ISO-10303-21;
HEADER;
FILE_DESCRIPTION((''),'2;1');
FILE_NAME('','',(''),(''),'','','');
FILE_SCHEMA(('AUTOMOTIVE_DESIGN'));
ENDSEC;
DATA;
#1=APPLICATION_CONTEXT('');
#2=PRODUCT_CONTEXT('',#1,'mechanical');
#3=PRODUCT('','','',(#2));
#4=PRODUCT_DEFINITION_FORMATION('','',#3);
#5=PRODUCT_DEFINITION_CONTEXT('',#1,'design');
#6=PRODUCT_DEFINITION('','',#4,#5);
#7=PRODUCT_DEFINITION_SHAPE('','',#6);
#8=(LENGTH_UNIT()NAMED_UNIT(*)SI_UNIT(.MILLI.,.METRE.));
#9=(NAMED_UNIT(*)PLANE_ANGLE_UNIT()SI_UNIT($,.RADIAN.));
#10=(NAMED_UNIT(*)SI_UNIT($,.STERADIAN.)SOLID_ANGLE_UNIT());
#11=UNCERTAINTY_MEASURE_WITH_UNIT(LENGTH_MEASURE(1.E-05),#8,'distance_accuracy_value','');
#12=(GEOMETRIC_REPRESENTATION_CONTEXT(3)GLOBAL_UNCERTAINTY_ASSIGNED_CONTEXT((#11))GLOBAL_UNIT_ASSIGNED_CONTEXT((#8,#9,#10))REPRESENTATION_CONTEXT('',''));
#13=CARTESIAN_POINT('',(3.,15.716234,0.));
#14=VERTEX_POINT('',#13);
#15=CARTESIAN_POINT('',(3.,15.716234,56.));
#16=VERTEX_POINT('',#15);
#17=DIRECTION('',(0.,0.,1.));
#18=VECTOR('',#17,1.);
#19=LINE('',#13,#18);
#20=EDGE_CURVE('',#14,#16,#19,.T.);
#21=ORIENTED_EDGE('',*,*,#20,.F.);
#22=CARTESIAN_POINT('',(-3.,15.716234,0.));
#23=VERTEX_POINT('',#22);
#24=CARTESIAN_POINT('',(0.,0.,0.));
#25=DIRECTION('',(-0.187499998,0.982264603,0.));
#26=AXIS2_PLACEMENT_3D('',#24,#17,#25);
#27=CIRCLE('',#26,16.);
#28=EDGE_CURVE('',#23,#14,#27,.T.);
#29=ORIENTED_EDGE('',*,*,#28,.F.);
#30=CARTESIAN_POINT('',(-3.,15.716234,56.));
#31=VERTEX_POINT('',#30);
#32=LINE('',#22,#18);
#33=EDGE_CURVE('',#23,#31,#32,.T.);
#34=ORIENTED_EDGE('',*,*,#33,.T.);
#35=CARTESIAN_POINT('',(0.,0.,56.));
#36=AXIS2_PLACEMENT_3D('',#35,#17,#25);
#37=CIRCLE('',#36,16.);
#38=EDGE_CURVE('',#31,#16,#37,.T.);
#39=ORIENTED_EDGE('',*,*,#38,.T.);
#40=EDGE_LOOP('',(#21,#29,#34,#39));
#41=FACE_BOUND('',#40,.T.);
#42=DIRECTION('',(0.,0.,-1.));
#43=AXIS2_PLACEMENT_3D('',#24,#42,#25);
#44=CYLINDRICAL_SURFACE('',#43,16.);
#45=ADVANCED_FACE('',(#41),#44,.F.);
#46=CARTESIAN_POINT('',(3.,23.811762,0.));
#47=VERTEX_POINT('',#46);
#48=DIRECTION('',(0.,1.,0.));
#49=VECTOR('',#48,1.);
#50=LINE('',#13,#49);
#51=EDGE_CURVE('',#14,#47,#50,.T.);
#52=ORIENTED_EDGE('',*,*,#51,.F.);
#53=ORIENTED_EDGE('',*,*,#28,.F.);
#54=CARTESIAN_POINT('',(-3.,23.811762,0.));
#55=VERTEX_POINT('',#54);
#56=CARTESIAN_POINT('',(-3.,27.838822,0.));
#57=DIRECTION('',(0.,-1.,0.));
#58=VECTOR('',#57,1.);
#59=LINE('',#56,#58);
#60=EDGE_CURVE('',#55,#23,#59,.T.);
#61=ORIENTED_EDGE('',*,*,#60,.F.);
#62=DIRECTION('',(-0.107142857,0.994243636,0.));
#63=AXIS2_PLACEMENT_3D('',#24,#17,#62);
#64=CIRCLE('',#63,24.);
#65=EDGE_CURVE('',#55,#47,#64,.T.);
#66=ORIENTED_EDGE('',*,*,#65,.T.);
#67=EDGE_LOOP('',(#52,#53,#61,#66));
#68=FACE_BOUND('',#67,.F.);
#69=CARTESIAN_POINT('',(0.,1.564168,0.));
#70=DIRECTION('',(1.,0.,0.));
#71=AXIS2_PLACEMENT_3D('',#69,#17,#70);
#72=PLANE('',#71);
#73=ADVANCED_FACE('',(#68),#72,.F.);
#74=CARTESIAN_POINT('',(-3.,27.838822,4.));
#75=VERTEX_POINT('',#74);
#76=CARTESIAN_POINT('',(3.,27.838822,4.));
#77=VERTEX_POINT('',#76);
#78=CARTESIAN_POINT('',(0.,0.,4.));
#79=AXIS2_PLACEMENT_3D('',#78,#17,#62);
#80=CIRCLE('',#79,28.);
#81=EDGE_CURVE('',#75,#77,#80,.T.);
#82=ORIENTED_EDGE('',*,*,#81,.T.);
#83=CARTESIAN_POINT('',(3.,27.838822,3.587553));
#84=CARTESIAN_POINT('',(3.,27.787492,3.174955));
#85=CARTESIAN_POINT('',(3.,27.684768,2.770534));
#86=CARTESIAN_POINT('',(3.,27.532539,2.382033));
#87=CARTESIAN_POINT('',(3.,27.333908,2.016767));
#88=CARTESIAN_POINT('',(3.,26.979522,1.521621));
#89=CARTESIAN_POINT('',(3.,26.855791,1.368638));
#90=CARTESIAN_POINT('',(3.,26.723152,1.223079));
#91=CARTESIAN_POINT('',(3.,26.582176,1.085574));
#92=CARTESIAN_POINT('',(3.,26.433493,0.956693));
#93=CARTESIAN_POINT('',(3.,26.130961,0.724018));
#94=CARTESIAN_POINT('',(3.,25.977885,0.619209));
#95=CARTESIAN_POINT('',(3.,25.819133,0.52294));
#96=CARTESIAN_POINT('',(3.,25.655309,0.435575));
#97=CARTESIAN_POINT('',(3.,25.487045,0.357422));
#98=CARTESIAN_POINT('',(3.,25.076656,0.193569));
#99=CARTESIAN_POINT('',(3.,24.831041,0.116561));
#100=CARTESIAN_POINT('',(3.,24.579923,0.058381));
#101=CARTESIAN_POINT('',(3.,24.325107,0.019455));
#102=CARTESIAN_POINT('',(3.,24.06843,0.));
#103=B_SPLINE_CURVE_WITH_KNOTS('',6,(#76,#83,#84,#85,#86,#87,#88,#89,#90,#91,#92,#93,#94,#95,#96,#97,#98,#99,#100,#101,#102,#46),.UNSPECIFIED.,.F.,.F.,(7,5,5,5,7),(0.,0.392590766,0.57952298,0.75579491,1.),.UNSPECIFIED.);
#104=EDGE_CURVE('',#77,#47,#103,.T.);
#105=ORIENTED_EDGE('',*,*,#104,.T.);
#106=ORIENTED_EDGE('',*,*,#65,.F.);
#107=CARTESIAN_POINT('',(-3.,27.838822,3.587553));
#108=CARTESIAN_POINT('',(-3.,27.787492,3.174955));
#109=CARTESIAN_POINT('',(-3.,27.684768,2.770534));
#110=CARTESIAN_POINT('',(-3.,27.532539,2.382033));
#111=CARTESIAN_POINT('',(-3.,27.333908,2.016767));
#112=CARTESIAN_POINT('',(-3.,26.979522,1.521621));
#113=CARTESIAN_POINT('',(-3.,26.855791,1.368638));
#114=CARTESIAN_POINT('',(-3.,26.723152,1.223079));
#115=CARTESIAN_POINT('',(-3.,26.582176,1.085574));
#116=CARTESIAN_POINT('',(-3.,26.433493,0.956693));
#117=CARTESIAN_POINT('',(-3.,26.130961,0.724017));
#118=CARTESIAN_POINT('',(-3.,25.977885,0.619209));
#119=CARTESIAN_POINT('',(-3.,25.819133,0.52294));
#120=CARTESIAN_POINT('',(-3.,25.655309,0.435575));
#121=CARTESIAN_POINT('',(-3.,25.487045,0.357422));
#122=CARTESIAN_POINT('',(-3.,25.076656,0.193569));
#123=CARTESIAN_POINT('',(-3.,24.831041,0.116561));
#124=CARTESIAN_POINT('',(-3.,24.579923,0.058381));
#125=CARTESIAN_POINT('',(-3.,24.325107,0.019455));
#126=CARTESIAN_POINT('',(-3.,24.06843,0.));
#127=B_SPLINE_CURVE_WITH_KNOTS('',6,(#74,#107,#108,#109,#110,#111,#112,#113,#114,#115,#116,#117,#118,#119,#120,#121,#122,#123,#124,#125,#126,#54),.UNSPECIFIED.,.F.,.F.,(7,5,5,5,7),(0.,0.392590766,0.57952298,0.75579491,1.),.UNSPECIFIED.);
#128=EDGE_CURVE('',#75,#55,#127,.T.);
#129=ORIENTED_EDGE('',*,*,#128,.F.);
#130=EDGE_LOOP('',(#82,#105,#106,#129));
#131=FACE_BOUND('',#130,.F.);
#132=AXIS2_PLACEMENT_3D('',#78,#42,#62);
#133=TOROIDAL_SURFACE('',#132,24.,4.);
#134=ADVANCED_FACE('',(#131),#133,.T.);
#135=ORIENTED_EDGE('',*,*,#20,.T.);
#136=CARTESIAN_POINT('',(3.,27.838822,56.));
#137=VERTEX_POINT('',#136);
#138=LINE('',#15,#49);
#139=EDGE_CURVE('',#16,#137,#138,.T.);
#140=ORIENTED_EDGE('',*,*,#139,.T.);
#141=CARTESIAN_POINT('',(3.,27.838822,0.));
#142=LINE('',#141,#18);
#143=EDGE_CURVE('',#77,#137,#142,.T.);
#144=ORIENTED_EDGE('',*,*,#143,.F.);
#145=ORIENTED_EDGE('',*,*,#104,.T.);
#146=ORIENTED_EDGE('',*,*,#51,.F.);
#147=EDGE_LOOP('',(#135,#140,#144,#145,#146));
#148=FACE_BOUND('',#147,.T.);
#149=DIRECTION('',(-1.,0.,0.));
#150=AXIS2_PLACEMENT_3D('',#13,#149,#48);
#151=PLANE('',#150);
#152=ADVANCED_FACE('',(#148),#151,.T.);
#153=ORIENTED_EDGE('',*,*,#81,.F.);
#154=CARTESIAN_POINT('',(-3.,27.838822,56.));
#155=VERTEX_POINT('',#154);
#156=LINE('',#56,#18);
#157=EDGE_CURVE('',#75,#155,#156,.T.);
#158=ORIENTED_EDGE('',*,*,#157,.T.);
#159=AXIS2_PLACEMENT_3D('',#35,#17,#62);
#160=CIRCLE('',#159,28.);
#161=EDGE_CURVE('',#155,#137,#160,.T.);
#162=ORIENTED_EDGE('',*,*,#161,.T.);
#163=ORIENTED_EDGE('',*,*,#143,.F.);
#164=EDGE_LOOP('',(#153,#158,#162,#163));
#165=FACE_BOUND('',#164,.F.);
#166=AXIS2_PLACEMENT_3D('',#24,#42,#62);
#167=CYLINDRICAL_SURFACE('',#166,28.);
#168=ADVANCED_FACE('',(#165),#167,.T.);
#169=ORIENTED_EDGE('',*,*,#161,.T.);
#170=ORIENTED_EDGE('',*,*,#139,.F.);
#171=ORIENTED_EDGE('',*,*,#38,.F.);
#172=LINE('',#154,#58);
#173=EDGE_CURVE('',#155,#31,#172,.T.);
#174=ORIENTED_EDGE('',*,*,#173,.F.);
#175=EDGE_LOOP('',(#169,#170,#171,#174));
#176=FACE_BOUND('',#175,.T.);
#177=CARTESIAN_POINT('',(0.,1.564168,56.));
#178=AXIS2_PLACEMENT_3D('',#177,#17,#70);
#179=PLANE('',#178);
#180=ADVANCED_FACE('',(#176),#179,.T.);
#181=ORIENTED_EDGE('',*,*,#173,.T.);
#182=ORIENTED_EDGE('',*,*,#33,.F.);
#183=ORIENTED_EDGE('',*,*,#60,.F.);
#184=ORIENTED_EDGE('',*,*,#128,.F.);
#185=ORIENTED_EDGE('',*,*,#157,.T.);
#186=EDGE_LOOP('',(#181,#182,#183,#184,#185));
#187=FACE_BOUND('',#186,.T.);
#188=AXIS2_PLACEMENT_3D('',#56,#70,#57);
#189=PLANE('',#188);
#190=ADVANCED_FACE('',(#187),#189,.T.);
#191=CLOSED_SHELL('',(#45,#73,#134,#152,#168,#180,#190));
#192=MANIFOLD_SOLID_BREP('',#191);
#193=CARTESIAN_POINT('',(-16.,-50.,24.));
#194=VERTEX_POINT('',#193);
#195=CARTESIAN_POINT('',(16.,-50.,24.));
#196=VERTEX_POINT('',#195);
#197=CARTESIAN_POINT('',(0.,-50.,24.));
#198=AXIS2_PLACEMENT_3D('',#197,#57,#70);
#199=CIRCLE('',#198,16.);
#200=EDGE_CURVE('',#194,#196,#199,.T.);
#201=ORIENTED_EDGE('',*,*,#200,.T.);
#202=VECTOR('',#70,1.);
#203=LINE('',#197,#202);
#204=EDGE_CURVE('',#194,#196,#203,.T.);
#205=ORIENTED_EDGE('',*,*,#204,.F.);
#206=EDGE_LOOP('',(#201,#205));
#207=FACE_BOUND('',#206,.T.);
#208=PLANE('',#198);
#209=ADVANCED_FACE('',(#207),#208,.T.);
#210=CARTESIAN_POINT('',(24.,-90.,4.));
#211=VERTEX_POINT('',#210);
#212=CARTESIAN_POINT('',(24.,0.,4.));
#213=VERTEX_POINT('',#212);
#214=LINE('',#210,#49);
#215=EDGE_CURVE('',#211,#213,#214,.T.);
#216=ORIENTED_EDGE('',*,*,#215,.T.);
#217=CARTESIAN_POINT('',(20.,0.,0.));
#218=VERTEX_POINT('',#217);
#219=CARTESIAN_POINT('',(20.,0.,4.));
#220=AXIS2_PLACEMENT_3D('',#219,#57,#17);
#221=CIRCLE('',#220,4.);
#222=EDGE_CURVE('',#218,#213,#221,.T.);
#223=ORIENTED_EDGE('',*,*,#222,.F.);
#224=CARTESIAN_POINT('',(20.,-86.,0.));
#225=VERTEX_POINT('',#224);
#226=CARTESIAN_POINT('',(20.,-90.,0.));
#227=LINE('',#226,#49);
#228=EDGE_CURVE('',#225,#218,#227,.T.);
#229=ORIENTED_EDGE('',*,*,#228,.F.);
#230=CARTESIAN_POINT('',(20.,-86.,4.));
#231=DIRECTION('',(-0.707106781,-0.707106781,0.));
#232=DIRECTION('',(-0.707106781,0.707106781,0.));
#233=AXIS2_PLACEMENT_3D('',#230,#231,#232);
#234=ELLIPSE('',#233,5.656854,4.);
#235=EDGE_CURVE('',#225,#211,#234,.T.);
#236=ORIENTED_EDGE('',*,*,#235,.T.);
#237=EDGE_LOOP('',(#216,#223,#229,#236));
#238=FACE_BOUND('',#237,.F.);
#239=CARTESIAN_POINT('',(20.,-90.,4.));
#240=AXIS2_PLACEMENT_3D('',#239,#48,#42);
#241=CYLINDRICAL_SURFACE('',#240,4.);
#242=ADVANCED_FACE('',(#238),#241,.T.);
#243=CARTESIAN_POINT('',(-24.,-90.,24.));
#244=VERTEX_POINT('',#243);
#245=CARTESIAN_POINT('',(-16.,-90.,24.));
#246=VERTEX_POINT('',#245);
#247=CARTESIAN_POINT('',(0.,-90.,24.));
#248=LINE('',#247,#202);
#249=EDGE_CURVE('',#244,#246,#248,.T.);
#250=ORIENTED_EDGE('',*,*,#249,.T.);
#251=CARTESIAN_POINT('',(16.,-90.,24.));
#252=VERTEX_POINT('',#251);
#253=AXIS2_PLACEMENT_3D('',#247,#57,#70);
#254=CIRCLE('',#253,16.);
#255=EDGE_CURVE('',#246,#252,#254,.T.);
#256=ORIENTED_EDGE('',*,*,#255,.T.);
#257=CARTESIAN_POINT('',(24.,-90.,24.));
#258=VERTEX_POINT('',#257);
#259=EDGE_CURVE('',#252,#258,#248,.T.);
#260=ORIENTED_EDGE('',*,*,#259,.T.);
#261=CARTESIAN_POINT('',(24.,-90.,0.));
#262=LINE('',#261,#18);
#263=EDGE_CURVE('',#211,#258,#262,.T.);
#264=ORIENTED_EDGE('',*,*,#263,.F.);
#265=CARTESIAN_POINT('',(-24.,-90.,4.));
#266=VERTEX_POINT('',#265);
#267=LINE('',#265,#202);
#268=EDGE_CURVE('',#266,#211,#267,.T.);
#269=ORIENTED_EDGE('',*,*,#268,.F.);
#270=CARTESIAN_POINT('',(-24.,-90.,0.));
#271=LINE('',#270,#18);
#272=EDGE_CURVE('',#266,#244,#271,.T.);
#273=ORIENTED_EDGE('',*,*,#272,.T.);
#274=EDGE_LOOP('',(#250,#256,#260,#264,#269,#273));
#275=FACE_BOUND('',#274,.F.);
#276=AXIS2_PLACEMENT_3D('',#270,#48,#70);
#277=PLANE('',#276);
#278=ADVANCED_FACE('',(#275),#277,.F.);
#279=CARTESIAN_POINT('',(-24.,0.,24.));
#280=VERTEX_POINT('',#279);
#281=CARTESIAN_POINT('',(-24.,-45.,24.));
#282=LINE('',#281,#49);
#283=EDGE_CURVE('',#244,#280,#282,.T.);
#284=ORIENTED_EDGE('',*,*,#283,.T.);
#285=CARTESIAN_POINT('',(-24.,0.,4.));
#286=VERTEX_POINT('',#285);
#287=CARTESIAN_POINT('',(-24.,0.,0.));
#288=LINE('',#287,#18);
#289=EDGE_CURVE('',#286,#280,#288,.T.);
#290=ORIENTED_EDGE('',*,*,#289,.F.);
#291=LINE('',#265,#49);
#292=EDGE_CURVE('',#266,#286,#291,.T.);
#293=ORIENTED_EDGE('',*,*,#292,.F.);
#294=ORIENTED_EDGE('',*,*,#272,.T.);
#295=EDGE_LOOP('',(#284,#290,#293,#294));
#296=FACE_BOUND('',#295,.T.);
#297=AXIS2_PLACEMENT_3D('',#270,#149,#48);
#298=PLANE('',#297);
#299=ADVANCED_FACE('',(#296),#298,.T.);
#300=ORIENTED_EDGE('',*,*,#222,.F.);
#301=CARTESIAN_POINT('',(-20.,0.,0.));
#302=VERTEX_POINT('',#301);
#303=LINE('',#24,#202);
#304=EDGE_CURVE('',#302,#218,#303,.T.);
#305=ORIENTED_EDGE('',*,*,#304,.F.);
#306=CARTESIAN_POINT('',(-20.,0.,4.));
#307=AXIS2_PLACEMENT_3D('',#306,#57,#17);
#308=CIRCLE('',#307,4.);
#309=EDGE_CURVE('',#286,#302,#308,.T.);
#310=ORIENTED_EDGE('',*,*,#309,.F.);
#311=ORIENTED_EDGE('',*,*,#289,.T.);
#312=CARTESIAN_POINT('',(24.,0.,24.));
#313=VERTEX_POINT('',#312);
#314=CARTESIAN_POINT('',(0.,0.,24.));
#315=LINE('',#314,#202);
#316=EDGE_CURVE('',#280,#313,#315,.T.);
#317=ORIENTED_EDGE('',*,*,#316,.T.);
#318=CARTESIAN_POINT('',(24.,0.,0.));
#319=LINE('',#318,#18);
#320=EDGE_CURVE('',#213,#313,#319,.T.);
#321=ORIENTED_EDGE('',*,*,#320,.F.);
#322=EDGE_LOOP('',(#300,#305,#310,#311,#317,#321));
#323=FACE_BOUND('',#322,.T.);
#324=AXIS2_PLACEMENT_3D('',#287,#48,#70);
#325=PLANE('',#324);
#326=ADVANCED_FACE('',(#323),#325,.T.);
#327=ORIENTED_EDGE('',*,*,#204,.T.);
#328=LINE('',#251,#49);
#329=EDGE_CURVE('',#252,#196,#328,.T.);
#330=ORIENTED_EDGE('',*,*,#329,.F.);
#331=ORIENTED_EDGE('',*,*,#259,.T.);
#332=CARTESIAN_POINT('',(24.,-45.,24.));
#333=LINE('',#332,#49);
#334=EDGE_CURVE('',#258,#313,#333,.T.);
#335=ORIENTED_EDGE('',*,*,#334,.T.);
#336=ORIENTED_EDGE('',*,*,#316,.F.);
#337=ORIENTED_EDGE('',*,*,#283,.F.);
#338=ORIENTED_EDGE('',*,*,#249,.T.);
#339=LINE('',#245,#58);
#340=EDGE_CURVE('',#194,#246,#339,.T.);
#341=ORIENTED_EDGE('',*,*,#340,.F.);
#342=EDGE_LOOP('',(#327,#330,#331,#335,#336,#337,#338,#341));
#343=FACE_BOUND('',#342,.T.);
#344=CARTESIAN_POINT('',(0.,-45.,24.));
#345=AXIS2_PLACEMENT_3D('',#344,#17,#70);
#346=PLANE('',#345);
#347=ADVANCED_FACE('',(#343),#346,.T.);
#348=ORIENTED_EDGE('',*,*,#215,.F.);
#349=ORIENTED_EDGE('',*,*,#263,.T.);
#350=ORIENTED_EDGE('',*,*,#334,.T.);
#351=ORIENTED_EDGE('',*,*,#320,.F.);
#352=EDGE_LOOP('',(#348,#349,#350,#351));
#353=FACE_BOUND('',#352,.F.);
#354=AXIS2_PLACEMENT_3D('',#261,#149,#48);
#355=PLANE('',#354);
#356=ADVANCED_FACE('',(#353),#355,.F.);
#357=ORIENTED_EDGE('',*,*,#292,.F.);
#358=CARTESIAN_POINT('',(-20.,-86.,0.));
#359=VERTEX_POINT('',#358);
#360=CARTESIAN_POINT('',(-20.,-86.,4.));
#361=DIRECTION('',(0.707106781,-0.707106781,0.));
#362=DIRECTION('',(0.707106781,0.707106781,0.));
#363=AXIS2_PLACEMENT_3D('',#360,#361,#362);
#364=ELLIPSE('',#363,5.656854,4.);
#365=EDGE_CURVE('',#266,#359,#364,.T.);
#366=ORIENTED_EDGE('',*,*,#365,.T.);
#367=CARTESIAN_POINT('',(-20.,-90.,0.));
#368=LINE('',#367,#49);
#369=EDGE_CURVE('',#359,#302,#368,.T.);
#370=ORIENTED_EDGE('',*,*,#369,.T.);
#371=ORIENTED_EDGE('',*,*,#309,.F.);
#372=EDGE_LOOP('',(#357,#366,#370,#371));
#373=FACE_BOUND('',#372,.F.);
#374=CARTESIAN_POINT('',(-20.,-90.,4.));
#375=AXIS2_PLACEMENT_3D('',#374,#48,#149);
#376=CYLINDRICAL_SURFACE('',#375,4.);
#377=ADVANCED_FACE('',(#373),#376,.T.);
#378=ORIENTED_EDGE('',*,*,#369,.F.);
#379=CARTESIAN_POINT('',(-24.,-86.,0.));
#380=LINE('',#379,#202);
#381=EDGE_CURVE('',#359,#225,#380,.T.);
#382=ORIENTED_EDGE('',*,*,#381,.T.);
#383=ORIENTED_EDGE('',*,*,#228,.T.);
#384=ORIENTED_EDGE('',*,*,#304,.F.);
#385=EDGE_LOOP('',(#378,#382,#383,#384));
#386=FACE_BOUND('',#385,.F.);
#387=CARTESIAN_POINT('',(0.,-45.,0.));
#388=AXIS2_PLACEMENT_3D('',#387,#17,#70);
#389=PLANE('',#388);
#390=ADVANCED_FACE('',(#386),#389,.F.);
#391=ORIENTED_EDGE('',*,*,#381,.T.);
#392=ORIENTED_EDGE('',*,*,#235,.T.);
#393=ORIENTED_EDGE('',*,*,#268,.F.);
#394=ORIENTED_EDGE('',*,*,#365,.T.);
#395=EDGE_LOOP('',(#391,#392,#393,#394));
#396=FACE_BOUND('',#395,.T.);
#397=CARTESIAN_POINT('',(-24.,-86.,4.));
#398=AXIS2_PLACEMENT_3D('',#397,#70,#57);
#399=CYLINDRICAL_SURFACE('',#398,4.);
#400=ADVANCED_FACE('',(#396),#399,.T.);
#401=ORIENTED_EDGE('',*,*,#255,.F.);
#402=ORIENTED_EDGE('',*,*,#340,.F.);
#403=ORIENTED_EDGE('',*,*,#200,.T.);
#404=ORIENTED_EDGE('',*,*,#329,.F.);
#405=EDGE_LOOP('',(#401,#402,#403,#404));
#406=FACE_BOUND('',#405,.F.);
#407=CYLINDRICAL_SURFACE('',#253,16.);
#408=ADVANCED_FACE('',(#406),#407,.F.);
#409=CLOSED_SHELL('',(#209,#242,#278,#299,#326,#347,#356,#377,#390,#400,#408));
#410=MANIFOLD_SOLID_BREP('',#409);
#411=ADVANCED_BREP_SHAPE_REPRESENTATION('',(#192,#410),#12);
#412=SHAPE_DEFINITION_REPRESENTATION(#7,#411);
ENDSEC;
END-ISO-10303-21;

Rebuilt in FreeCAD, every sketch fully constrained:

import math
import FreeCAD as App
import Part
import Sketcher


def edges_at(feature, points):
    """Names of the edges that pass closest to the given points."""
    edges = feature.Shape.Edges
    near = lambda p: min(range(len(edges)), key=lambda i: edges[i].distToShape(Part.Vertex(*p))[0])
    return sorted({f"Edge{near(p) + 1}" for p in points})


def add_polygon(sketch, points):
    """Adds a closed chain of lines whose ends are joined by coincident constraints."""
    first, n = sketch.GeometryCount, len(points)
    for a, b in zip(points, points[1:] + points[:1]):
        sketch.addGeometry(Part.LineSegment(App.Vector(*a, 0), App.Vector(*b, 0)), False)
    for i in range(n):
        sketch.addConstraint(Sketcher.Constraint("Coincident", first + i, 2, first + (i + 1) % n, 1))

doc = App.newDocument("Part")
body = doc.addObject("PartDesign::Body", "Body")

# Sketch on XY plane
sketch1 = body.newObject("Sketcher::SketchObject", "Sketch")
sketch1.AttachmentSupport = (doc.getObject("XY_Plane"), [""])
sketch1.MapMode = "FlatFace"
sketch1.addGeometry([
    Part.ArcOfCircle(Part.Circle(App.Vector(0, 0, 0), App.Vector(0, 0, 1), 28), math.radians(96.15064), math.radians(443.84936)),
    Part.LineSegment(App.Vector(3, 27.838822, 0), App.Vector(3, 15.716234, 0)),
    Part.ArcOfCircle(Part.Circle(App.Vector(0, 0, 0), App.Vector(0, 0, 1), 16), math.radians(100.806923), math.radians(439.193077)),
    Part.LineSegment(App.Vector(-3, 15.716234, 0), App.Vector(-3, 27.838822, 0)),
], False)
sketch1.addConstraint([
    Sketcher.Constraint("Coincident", 0, 2, 1, 1),
    Sketcher.Constraint("Coincident", 1, 2, 2, 2),
    Sketcher.Constraint("Coincident", 2, 1, 3, 1),
    Sketcher.Constraint("Coincident", 3, 2, 0, 1),
    Sketcher.Constraint("Vertical", 1),
    Sketcher.Constraint("Vertical", 3),
    Sketcher.Constraint("Coincident", 0, 3, -1, 1),
    Sketcher.Constraint("Coincident", 2, 3, -1, 1),
    Sketcher.Constraint("Horizontal", 1, 2, 2, 1),
    Sketcher.Constraint("Radius", 0, 28.0),
    Sketcher.Constraint("Radius", 2, 16.0),
    Sketcher.Constraint("DistanceX", -1, 1, 0, 2, 3.0),
])
pad1 = body.newObject("PartDesign::Pad", "Pad")
pad1.Profile = sketch1
pad1.Length = 56
doc.recompute()

fillet = body.newObject("PartDesign::Fillet", "Fillet")
fillet.Base = (pad1, edges_at(pad1, [(0, -28, 0)]))
fillet.Radius = 4
body2 = doc.addObject("PartDesign::Body", "Body001")

# Sketch on XY plane
sketch2 = body2.newObject("Sketcher::SketchObject", "Sketch001")
sketch2.AttachmentSupport = (doc.getObject("XY_Plane001"), [""])
sketch2.MapMode = "FlatFace"
add_polygon(sketch2, [(-24, 0), (-24, -90), (24, -90), (24, 0)])  # lines 0-3
sketch2.addConstraint([
    Sketcher.Constraint("Vertical", 0),
    Sketcher.Constraint("Horizontal", 1),
    Sketcher.Constraint("Vertical", 2),
    Sketcher.Constraint("Horizontal", 3),
    Sketcher.Constraint("Symmetric", 2, 2, 3, 2, -1, 1),
    Sketcher.Constraint("DistanceX", 1, 1, 1, 2, 48.0),
    Sketcher.Constraint("DistanceY", 0, 2, 0, 1, 90.0),
])
pad2 = body2.newObject("PartDesign::Pad", "Pad001")
pad2.Profile = sketch2
pad2.Length = 24

# Sketch on XZ plane
sketch3 = body2.newObject("Sketcher::SketchObject", "Sketch002")
sketch3.AttachmentSupport = (doc.getObject("XZ_Plane001"), [""])
sketch3.MapMode = "FlatFace"
sketch3.AttachmentOffset = App.Placement(App.Vector(0, 0, 90), App.Rotation())
sketch3.addGeometry(Part.Circle(App.Vector(0, 24, 0), App.Vector(0, 0, 1), 16), False)
sketch3.addConstraint([
    Sketcher.Constraint("PointOnObject", 0, 3, -2),
    Sketcher.Constraint("Diameter", 0, 32.0),
    Sketcher.Constraint("DistanceY", -1, 1, 0, 3, 24.0),
])
pocket1 = body2.newObject("PartDesign::Pocket", "Pocket")
pocket1.Profile = sketch3
pocket1.Length = 40
doc.recompute()

fillet2 = body2.newObject("PartDesign::Fillet", "Fillet001")
fillet2.Base = (pocket1, edges_at(pocket1, [(24, -45, 0), (0, -90, 0), (-24, -45, 0)]))
fillet2.Radius = 4

doc.recompute()
